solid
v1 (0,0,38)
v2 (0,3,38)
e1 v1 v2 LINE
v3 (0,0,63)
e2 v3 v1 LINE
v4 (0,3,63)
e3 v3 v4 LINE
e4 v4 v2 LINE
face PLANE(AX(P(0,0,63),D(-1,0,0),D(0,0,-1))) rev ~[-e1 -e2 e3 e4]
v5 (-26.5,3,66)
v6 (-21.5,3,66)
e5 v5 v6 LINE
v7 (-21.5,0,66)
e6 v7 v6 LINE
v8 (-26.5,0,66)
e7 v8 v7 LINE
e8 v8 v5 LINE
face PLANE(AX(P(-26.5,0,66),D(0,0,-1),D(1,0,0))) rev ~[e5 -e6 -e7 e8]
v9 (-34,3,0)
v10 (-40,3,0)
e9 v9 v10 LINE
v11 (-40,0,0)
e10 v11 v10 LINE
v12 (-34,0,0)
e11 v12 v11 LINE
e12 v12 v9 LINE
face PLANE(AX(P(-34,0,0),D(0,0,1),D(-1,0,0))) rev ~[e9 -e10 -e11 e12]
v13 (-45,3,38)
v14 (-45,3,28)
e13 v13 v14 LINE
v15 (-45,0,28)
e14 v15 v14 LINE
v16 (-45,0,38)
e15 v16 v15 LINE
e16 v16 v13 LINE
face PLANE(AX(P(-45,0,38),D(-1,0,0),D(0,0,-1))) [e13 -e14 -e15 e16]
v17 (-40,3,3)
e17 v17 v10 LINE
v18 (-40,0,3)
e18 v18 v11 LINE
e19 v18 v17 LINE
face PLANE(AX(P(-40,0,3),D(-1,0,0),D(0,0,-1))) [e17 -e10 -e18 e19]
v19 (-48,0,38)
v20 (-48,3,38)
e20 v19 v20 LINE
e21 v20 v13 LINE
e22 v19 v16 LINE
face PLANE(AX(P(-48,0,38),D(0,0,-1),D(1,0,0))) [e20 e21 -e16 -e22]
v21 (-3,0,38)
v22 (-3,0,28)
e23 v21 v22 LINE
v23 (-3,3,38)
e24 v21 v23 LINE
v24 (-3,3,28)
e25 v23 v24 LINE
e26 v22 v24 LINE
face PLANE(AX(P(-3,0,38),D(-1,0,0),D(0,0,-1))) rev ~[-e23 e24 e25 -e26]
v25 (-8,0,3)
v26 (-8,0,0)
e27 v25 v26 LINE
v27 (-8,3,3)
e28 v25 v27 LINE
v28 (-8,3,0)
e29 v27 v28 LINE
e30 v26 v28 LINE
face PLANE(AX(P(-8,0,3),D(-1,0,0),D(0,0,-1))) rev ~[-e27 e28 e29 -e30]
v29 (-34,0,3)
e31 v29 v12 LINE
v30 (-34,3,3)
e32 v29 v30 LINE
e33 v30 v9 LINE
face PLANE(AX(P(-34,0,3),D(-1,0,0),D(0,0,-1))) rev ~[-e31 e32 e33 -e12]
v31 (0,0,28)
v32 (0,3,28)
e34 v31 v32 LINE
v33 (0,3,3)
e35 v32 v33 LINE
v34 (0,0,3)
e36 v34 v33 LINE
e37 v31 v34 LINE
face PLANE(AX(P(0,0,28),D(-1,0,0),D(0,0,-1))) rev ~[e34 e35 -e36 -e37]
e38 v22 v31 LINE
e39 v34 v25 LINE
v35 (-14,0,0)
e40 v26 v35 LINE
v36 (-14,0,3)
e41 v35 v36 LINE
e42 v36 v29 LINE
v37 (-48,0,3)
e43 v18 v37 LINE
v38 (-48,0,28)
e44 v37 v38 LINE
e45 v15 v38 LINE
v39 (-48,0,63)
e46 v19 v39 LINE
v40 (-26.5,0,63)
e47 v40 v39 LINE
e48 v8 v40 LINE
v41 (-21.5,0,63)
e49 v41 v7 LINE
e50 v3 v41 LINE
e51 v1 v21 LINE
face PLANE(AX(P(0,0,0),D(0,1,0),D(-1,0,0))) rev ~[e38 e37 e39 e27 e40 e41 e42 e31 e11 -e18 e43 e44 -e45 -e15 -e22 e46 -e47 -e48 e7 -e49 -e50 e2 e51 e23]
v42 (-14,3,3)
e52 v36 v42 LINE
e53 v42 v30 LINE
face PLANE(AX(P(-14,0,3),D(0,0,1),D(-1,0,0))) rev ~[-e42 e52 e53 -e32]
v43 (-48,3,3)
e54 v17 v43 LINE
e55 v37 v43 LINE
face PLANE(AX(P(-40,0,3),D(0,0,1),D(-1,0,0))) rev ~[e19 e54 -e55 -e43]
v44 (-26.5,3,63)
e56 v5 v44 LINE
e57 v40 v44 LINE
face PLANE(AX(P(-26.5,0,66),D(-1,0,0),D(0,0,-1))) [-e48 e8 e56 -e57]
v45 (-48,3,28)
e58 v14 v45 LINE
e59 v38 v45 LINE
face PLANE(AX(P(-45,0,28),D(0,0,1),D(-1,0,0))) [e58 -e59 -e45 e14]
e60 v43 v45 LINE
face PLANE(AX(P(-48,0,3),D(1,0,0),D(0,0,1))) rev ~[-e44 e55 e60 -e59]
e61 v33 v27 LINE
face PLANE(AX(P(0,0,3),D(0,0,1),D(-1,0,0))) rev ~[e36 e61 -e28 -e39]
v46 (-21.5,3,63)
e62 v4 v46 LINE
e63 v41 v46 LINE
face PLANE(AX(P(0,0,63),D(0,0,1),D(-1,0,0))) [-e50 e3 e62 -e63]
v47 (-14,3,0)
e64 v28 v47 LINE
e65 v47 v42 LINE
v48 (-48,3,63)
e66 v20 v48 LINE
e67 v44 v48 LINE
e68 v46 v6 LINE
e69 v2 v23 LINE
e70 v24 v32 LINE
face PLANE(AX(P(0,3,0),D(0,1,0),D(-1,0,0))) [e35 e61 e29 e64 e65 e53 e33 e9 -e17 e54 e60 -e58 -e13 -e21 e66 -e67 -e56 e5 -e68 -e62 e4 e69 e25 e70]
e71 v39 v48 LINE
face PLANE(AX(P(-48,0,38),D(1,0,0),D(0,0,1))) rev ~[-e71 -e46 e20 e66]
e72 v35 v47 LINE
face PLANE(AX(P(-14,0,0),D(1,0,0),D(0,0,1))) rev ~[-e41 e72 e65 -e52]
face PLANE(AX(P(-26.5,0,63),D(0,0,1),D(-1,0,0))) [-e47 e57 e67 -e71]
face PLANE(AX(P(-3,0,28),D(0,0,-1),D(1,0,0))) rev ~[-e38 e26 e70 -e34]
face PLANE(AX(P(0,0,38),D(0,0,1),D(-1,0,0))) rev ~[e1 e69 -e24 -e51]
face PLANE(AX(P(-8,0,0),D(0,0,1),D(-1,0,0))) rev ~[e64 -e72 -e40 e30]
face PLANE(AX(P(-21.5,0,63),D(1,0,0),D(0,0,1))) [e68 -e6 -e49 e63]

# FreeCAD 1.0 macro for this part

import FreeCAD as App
import Part
import Sketcher

V = App.Vector
Q = App.Units.Quantity

doc = App.newDocument("Part")
body = doc.addObject("PartDesign::Body", "Body")

sketch1 = body.newObject("Sketcher::SketchObject", "Sketch")
sketch1.AttachmentSupport = (doc.getObject("XZ_Plane"), [""])
sketch1.MapMode = "FlatFace"
sketch1.addGeometry([
    Part.LineSegment(V(-26.5, 63, 0), V(-26.5, 66, 0)),
    Part.LineSegment(V(-26.5, 66, 0), V(-21.5, 66, 0)),
    Part.LineSegment(V(-21.5, 66, 0), V(-21.5, 63, 0)),
    Part.LineSegment(V(-21.5, 63, 0), V(0, 63, 0)),
    Part.LineSegment(V(0, 63, 0), V(0, 38, 0)),
    Part.LineSegment(V(0, 38, 0), V(-3, 38, 0)),
    Part.LineSegment(V(-3, 38, 0), V(-3, 28, 0)),
    Part.LineSegment(V(-3, 28, 0), V(0, 28, 0)),
    Part.LineSegment(V(0, 28, 0), V(0, 3, 0)),
    Part.LineSegment(V(0, 3, 0), V(-8, 3, 0)),
    Part.LineSegment(V(-8, 3, 0), V(-8, 0, 0)),
    Part.LineSegment(V(-8, 0, 0), V(-14, 0, 0)),
    Part.LineSegment(V(-14, 0, 0), V(-14, 3, 0)),
    Part.LineSegment(V(-14, 3, 0), V(-34, 3, 0)),
    Part.LineSegment(V(-34, 3, 0), V(-34, 0, 0)),
    Part.LineSegment(V(-34, 0, 0), V(-40, 0, 0)),
    Part.LineSegment(V(-40, 0, 0), V(-40, 3, 0)),
    Part.LineSegment(V(-40, 3, 0), V(-48, 3, 0)),
    Part.LineSegment(V(-48, 3, 0), V(-48, 28, 0)),
    Part.LineSegment(V(-48, 28, 0), V(-45, 28, 0)),
    Part.LineSegment(V(-45, 28, 0), V(-45, 38, 0)),
    Part.LineSegment(V(-45, 38, 0), V(-48, 38, 0)),
    Part.LineSegment(V(-48, 38, 0), V(-48, 63, 0)),
    Part.LineSegment(V(-48, 63, 0), V(-26.5, 63, 0)),
], False)
sketch1.addConstraint([
    Sketcher.Constraint("Coincident", 0, 2, 1, 1),
    Sketcher.Constraint("Coincident", 1, 2, 2, 1),
    Sketcher.Constraint("Coincident", 2, 2, 3, 1),
    Sketcher.Constraint("Coincident", 3, 2, 4, 1),
    Sketcher.Constraint("Coincident", 4, 2, 5, 1),
    Sketcher.Constraint("Coincident", 5, 2, 6, 1),
    Sketcher.Constraint("Coincident", 6, 2, 7, 1),
    Sketcher.Constraint("Coincident", 7, 2, 8, 1),
    Sketcher.Constraint("Coincident", 8, 2, 9, 1),
    Sketcher.Constraint("Coincident", 9, 2, 10, 1),
    Sketcher.Constraint("Coincident", 10, 2, 11, 1),
    Sketcher.Constraint("Coincident", 11, 2, 12, 1),
    Sketcher.Constraint("Coincident", 12, 2, 13, 1),
    Sketcher.Constraint("Coincident", 13, 2, 14, 1),
    Sketcher.Constraint("Coincident", 14, 2, 15, 1),
    Sketcher.Constraint("Coincident", 15, 2, 16, 1),
    Sketcher.Constraint("Coincident", 16, 2, 17, 1),
    Sketcher.Constraint("Coincident", 17, 2, 18, 1),
    Sketcher.Constraint("Coincident", 18, 2, 19, 1),
    Sketcher.Constraint("Coincident", 19, 2, 20, 1),
    Sketcher.Constraint("Coincident", 20, 2, 21, 1),
    Sketcher.Constraint("Coincident", 21, 2, 22, 1),
    Sketcher.Constraint("Coincident", 22, 2, 23, 1),
    Sketcher.Constraint("Coincident", 23, 2, 0, 1),
    Sketcher.Constraint("Vertical", 0),
    Sketcher.Constraint("Horizontal", 1),
    Sketcher.Constraint("Vertical", 2),
    Sketcher.Constraint("Horizontal", 3),
    Sketcher.Constraint("Vertical", 4),
    Sketcher.Constraint("Horizontal", 5),
    Sketcher.Constraint("Vertical", 6),
    Sketcher.Constraint("Horizontal", 7),
    Sketcher.Constraint("Vertical", 8),
    Sketcher.Constraint("Horizontal", 9),
    Sketcher.Constraint("Vertical", 10),
    Sketcher.Constraint("Horizontal", 11),
    Sketcher.Constraint("Vertical", 12),
    Sketcher.Constraint("Horizontal", 13),
    Sketcher.Constraint("Vertical", 14),
    Sketcher.Constraint("Horizontal", 15),
    Sketcher.Constraint("Vertical", 16),
    Sketcher.Constraint("Horizontal", 17),
    Sketcher.Constraint("Vertical", 18),
    Sketcher.Constraint("Horizontal", 19),
    Sketcher.Constraint("Vertical", 20),
    Sketcher.Constraint("Horizontal", 21),
    Sketcher.Constraint("Vertical", 22),
    Sketcher.Constraint("Horizontal", 23),
    Sketcher.Constraint("PointOnObject", 3, 2, -2),
    Sketcher.Constraint("PointOnObject", 7, 2, -2),
    Sketcher.Constraint("PointOnObject", 10, 2, -1),
    Sketcher.Constraint("PointOnObject", 14, 2, -1),
    Sketcher.Constraint("Horizontal", 9, 2, 12, 2),
    Sketcher.Constraint("Horizontal", 13, 2, 16, 2),
    Sketcher.Constraint("Horizontal", 7, 2, 18, 2),
    Sketcher.Constraint("Horizontal", 5, 2, 20, 2),
    Sketcher.Constraint("Horizontal", 3, 2, 22, 2),
    Sketcher.Constraint("Vertical", 18, 2, 21, 2),
    Sketcher.Constraint("Equal", 11, 15),
    Sketcher.Constraint("Equal", 9, 17),
    Sketcher.Constraint("Equal", 7, 19),
    Sketcher.Constraint("Equal", 3, 23),
    Sketcher.Constraint("Equal", 21, 0),
    Sketcher.Constraint("Equal", 4, 8),
    Sketcher.Constraint("Equal", 2, 10),
    Sketcher.Constraint("DistanceX", 1, 1, 1, 2, Q("5 mm")),
    Sketcher.Constraint("DistanceX", 5, 2, 5, 1, Q("3 mm")),
    Sketcher.Constraint("DistanceX", 9, 2, 9, 1, Q("8 mm")),
    Sketcher.Constraint("DistanceX", 11, 2, 11, 1, Q("6 mm")),
    Sketcher.Constraint("DistanceY", 4, 2, 4, 1, Q("25 mm")),
    Sketcher.Constraint("DistanceY", 6, 2, 6, 1, Q("10 mm")),
    Sketcher.Constraint("DistanceX", 3, 1, 3, 2, Q("21.5 mm")),
])
pad1 = body.newObject("PartDesign::Pad", "Pad")
pad1.Profile = sketch1
pad1.Length = 3
pad1.Reversed = True

doc.recompute()
